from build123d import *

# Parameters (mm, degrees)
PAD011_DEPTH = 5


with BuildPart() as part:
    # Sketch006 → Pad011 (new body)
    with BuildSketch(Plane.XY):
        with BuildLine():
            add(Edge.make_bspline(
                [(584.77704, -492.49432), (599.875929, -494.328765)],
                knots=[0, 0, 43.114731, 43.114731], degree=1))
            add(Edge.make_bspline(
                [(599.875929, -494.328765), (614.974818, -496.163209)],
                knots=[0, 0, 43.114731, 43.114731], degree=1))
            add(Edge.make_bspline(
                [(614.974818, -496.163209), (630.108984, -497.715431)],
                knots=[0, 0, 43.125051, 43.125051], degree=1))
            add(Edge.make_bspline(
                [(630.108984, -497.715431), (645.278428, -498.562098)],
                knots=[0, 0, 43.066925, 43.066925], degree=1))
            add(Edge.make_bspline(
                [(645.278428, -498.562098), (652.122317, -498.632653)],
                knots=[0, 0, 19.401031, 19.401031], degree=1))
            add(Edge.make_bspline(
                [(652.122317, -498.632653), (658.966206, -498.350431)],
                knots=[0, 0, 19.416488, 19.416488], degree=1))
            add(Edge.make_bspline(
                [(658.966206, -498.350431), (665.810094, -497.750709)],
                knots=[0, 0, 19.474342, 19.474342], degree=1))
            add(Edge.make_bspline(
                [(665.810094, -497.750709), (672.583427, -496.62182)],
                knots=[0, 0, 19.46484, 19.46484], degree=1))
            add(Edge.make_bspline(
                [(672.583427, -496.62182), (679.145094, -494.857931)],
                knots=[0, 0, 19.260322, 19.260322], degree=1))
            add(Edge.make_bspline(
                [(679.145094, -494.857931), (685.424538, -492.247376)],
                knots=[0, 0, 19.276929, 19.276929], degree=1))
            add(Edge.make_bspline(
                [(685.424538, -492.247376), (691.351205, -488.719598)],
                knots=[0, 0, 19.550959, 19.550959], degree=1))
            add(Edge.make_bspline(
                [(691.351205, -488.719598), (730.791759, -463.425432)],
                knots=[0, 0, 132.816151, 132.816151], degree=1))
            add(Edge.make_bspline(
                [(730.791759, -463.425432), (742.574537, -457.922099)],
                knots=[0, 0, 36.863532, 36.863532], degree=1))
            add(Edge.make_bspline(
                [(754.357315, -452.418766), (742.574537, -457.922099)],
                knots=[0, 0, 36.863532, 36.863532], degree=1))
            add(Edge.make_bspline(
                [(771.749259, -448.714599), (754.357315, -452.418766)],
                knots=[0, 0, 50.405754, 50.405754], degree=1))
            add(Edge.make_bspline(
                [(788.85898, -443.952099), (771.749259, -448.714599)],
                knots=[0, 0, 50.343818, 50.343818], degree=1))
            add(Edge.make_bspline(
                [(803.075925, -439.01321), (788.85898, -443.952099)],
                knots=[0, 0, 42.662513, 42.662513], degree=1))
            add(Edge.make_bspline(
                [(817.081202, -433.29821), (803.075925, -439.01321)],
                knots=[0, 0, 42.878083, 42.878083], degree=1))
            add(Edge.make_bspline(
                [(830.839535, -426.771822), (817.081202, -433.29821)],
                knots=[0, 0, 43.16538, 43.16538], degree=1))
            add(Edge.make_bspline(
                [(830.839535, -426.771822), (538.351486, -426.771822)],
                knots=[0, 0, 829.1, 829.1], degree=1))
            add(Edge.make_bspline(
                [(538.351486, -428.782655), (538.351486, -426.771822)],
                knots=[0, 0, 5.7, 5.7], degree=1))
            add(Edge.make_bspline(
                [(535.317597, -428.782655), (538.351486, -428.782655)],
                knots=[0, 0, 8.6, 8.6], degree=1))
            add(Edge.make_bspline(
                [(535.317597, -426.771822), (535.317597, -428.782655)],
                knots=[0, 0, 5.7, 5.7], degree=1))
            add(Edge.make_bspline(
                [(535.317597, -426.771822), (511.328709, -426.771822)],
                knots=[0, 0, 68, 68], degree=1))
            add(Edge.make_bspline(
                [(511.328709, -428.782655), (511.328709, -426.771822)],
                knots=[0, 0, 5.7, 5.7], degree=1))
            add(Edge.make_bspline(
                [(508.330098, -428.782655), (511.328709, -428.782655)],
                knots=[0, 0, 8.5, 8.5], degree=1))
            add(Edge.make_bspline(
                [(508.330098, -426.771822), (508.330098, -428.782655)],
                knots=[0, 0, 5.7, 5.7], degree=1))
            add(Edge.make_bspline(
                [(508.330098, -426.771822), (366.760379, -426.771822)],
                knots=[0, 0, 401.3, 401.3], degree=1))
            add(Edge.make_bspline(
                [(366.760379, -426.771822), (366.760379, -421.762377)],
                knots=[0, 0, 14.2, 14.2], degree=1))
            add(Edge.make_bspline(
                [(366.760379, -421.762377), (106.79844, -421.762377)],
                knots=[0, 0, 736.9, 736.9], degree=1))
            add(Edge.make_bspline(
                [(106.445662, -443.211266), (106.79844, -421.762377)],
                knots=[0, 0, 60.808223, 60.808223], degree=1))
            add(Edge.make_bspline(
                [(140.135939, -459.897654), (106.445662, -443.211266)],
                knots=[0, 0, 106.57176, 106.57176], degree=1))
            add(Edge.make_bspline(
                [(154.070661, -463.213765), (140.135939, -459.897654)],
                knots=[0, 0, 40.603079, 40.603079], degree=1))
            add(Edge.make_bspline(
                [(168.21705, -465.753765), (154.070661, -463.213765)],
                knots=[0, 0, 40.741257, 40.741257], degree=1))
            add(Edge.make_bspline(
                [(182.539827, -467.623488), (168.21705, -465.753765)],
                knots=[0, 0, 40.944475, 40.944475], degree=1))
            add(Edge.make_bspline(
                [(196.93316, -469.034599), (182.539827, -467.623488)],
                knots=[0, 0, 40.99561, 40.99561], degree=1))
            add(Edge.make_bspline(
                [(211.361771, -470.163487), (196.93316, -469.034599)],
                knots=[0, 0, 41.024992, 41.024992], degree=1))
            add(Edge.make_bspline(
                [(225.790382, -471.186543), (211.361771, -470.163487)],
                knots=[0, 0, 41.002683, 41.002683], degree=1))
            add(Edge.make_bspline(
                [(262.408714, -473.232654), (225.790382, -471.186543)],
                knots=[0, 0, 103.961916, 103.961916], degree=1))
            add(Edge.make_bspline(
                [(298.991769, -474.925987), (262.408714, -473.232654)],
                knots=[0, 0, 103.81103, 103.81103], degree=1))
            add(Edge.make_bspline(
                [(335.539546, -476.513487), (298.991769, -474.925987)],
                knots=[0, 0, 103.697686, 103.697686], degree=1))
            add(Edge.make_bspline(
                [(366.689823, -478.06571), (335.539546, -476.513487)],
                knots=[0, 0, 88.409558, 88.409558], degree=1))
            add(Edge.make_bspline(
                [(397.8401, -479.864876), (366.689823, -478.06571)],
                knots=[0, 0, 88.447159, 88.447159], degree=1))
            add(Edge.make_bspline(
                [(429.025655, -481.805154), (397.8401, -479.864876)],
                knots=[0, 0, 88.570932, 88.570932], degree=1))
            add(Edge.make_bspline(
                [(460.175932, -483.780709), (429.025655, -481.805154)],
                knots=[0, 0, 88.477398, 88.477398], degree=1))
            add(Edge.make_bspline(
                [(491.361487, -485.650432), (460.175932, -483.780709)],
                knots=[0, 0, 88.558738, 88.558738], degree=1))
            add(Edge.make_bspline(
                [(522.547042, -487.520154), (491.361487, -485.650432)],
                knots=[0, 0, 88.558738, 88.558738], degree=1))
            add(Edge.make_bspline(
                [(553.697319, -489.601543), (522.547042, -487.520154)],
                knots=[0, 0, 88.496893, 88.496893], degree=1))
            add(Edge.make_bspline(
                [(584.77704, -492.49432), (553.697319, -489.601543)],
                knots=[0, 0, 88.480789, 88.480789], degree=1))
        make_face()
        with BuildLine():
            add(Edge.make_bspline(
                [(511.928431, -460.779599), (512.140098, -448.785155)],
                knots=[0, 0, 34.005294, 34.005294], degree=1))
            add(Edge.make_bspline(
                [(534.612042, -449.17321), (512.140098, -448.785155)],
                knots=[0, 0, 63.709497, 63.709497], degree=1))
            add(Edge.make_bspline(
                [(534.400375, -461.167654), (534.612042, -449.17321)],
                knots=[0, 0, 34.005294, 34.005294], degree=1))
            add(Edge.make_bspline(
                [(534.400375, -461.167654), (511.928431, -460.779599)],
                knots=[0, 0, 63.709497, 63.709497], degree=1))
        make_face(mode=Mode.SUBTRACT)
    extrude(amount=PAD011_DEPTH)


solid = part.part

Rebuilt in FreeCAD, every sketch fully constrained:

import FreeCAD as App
import Part
import Sketcher

doc = App.newDocument("Part")
body = doc.addObject("PartDesign::Body", "Body")

sketch1 = body.newObject("Sketcher::SketchObject", "Sketch")
sketch1.AttachmentSupport = (doc.getObject("XY_Plane"), [""])
sketch1.MapMode = "FlatFace"
sketch1.addGeometry([
    Part.BSplineCurve([App.Vector(584.77704, -492.49432, 0), App.Vector(599.875929, -494.328765, 0)], [2, 2], [0, 43.114731], False, 1, [1, 1], False),
    Part.BSplineCurve([App.Vector(599.875929, -494.328765, 0), App.Vector(614.974818, -496.163209, 0)], [2, 2], [0, 43.114731], False, 1, [1, 1], False),
    Part.BSplineCurve([App.Vector(614.974818, -496.163209, 0), App.Vector(630.108984, -497.715431, 0)], [2, 2], [0, 43.125051], False, 1, [1, 1], False),
    Part.BSplineCurve([App.Vector(630.108984, -497.715431, 0), App.Vector(645.278428, -498.562098, 0)], [2, 2], [0, 43.066925], False, 1, [1, 1], False),
    Part.BSplineCurve([App.Vector(645.278428, -498.562098, 0), App.Vector(652.122317, -498.632653, 0)], [2, 2], [0, 19.401031], False, 1, [1, 1], False),
    Part.BSplineCurve([App.Vector(652.122317, -498.632653, 0), App.Vector(658.966206, -498.350431, 0)], [2, 2], [0, 19.416488], False, 1, [1, 1], False),
    Part.BSplineCurve([App.Vector(658.966206, -498.350431, 0), App.Vector(665.810094, -497.750709, 0)], [2, 2], [0, 19.474342], False, 1, [1, 1], False),
    Part.BSplineCurve([App.Vector(665.810094, -497.750709, 0), App.Vector(672.583427, -496.62182, 0)], [2, 2], [0, 19.46484], False, 1, [1, 1], False),
    Part.BSplineCurve([App.Vector(672.583427, -496.62182, 0), App.Vector(679.145094, -494.857931, 0)], [2, 2], [0, 19.260322], False, 1, [1, 1], False),
    Part.BSplineCurve([App.Vector(679.145094, -494.857931, 0), App.Vector(685.424538, -492.247376, 0)], [2, 2], [0, 19.276929], False, 1, [1, 1], False),
    Part.BSplineCurve([App.Vector(685.424538, -492.247376, 0), App.Vector(691.351205, -488.719598, 0)], [2, 2], [0, 19.550959], False, 1, [1, 1], False),
    Part.BSplineCurve([App.Vector(691.351205, -488.719598, 0), App.Vector(730.791759, -463.425432, 0)], [2, 2], [0, 132.816151], False, 1, [1, 1], False),
    Part.LineSegment(App.Vector(730.791759, -463.425432, 0), App.Vector(754.357315, -452.418766, 0)),
    Part.BSplineCurve([App.Vector(771.749259, -448.714599, 0), App.Vector(754.357315, -452.418766, 0)], [2, 2], [0, 50.405754], False, 1, [1, 1], False),
    Part.BSplineCurve([App.Vector(788.85898, -443.952099, 0), App.Vector(771.749259, -448.714599, 0)], [2, 2], [0, 50.343818], False, 1, [1, 1], False),
    Part.BSplineCurve([App.Vector(803.075925, -439.01321, 0), App.Vector(788.85898, -443.952099, 0)], [2, 2], [0, 42.662513], False, 1, [1, 1], False),
    Part.BSplineCurve([App.Vector(817.081202, -433.29821, 0), App.Vector(803.075925, -439.01321, 0)], [2, 2], [0, 42.878083], False, 1, [1, 1], False),
    Part.BSplineCurve([App.Vector(830.839535, -426.771822, 0), App.Vector(817.081202, -433.29821, 0)], [2, 2], [0, 43.16538], False, 1, [1, 1], False),
    Part.BSplineCurve([App.Vector(830.839535, -426.771822, 0), App.Vector(538.351486, -426.771822, 0)], [2, 2], [0, 829.1], False, 1, [1, 1], False),
    Part.BSplineCurve([App.Vector(538.351486, -428.782655, 0), App.Vector(538.351486, -426.771822, 0)], [2, 2], [0, 5.7], False, 1, [1, 1], False),
    Part.BSplineCurve([App.Vector(535.317597, -428.782655, 0), App.Vector(538.351486, -428.782655, 0)], [2, 2], [0, 8.6], False, 1, [1, 1], False),
    Part.BSplineCurve([App.Vector(535.317597, -426.771822, 0), App.Vector(535.317597, -428.782655, 0)], [2, 2], [0, 5.7], False, 1, [1, 1], False),
    Part.BSplineCurve([App.Vector(535.317597, -426.771822, 0), App.Vector(511.328709, -426.771822, 0)], [2, 2], [0, 68], False, 1, [1, 1], False),
    Part.BSplineCurve([App.Vector(511.328709, -428.782655, 0), App.Vector(511.328709, -426.771822, 0)], [2, 2], [0, 5.7], False, 1, [1, 1], False),
    Part.BSplineCurve([App.Vector(508.330098, -428.782655, 0), App.Vector(511.328709, -428.782655, 0)], [2, 2], [0, 8.5], False, 1, [1, 1], False),
    Part.BSplineCurve([App.Vector(508.330098, -426.771822, 0), App.Vector(508.330098, -428.782655, 0)], [2, 2], [0, 5.7], False, 1, [1, 1], False),
    Part.BSplineCurve([App.Vector(508.330098, -426.771822, 0), App.Vector(366.760379, -426.771822, 0)], [2, 2], [0, 401.3], False, 1, [1, 1], False),
    Part.BSplineCurve([App.Vector(366.760379, -426.771822, 0), App.Vector(366.760379, -421.762377, 0)], [2, 2], [0, 14.2], False, 1, [1, 1], False),
    Part.BSplineCurve([App.Vector(366.760379, -421.762377, 0), App.Vector(106.79844, -421.762377, 0)], [2, 2], [0, 736.9], False, 1, [1, 1], False),
    Part.BSplineCurve([App.Vector(106.445662, -443.211266, 0), App.Vector(106.79844, -421.762377, 0)], [2, 2], [0, 60.808223], False, 1, [1, 1], False),
    Part.BSplineCurve([App.Vector(140.135939, -459.897654, 0), App.Vector(106.445662, -443.211266, 0)], [2, 2], [0, 106.57176], False, 1, [1, 1], False),
    Part.BSplineCurve([App.Vector(154.070661, -463.213765, 0), App.Vector(140.135939, -459.897654, 0)], [2, 2], [0, 40.603079], False, 1, [1, 1], False),
    Part.BSplineCurve([App.Vector(168.21705, -465.753765, 0), App.Vector(154.070661, -463.213765, 0)], [2, 2], [0, 40.741257], False, 1, [1, 1], False),
    Part.BSplineCurve([App.Vector(182.539827, -467.623488, 0), App.Vector(168.21705, -465.753765, 0)], [2, 2], [0, 40.944475], False, 1, [1, 1], False),
    Part.BSplineCurve([App.Vector(196.93316, -469.034599, 0), App.Vector(182.539827, -467.623488, 0)], [2, 2], [0, 40.99561], False, 1, [1, 1], False),
    Part.BSplineCurve([App.Vector(211.361771, -470.163487, 0), App.Vector(196.93316, -469.034599, 0)], [2, 2], [0, 41.024992], False, 1, [1, 1], False),
    Part.BSplineCurve([App.Vector(225.790382, -471.186543, 0), App.Vector(211.361771, -470.163487, 0)], [2, 2], [0, 41.002683], False, 1, [1, 1], False),
    Part.BSplineCurve([App.Vector(262.408714, -473.232654, 0), App.Vector(225.790382, -471.186543, 0)], [2, 2], [0, 103.961916], False, 1, [1, 1], False),
    Part.BSplineCurve([App.Vector(298.991769, -474.925987, 0), App.Vector(262.408714, -473.232654, 0)], [2, 2], [0, 103.81103], False, 1, [1, 1], False),
    Part.BSplineCurve([App.Vector(335.539546, -476.513487, 0), App.Vector(298.991769, -474.925987, 0)], [2, 2], [0, 103.697686], False, 1, [1, 1], False),
    Part.BSplineCurve([App.Vector(366.689823, -478.06571, 0), App.Vector(335.539546, -476.513487, 0)], [2, 2], [0, 88.409558], False, 1, [1, 1], False),
    Part.BSplineCurve([App.Vector(397.8401, -479.864876, 0), App.Vector(366.689823, -478.06571, 0)], [2, 2], [0, 88.447159], False, 1, [1, 1], False),
    Part.BSplineCurve([App.Vector(429.025655, -481.805154, 0), App.Vector(397.8401, -479.864876, 0)], [2, 2], [0, 88.570932], False, 1, [1, 1], False),
    Part.BSplineCurve([App.Vector(460.175932, -483.780709, 0), App.Vector(429.025655, -481.805154, 0)], [2, 2], [0, 88.477398], False, 1, [1, 1], False),
    Part.BSplineCurve([App.Vector(491.361487, -485.650432, 0), App.Vector(460.175932, -483.780709, 0)], [2, 2], [0, 88.558738], False, 1, [1, 1], False),
    Part.BSplineCurve([App.Vector(522.547042, -487.520154, 0), App.Vector(491.361487, -485.650432, 0)], [2, 2], [0, 88.558738], False, 1, [1, 1], False),
    Part.BSplineCurve([App.Vector(553.697319, -489.601543, 0), App.Vector(522.547042, -487.520154, 0)], [2, 2], [0, 88.496893], False, 1, [1, 1], False),
    Part.BSplineCurve([App.Vector(584.77704, -492.49432, 0), App.Vector(553.697319, -489.601543, 0)], [2, 2], [0, 88.480789], False, 1, [1, 1], False),
    Part.BSplineCurve([App.Vector(534.400375, -461.167654, 0), App.Vector(511.928431, -460.779599, 0)], [2, 2], [0, 63.709497], False, 1, [1, 1], False),
    Part.BSplineCurve([App.Vector(511.928431, -460.779599, 0), App.Vector(512.140098, -448.785155, 0)], [2, 2], [0, 34.005294], False, 1, [1, 1], False),
    Part.BSplineCurve([App.Vector(534.612042, -449.17321, 0), App.Vector(512.140098, -448.785155, 0)], [2, 2], [0, 63.709497], False, 1, [1, 1], False),
    Part.BSplineCurve([App.Vector(534.400375, -461.167654, 0), App.Vector(534.612042, -449.17321, 0)], [2, 2], [0, 34.005294], False, 1, [1, 1], False),
], False)
sketch1.addConstraint([
    Sketcher.Constraint("Block", 0),
    Sketcher.Constraint("Block", 1),
    Sketcher.Constraint("Block", 2),
    Sketcher.Constraint("Block", 3),
    Sketcher.Constraint("Block", 4),
    Sketcher.Constraint("Block", 5),
    Sketcher.Constraint("Block", 6),
    Sketcher.Constraint("Block", 7),
    Sketcher.Constraint("Block", 8),
    Sketcher.Constraint("Block", 9),
    Sketcher.Constraint("Block", 10),
    Sketcher.Constraint("Block", 11),
    Sketcher.Constraint("Block", 13),
    Sketcher.Constraint("Block", 14),
    Sketcher.Constraint("Block", 15),
    Sketcher.Constraint("Block", 16),
    Sketcher.Constraint("Block", 17),
    Sketcher.Constraint("Block", 18),
    Sketcher.Constraint("Block", 19),
    Sketcher.Constraint("Block", 20),
    Sketcher.Constraint("Block", 21),
    Sketcher.Constraint("Block", 22),
    Sketcher.Constraint("Block", 23),
    Sketcher.Constraint("Block", 24),
    Sketcher.Constraint("Block", 25),
    Sketcher.Constraint("Block", 26),
    Sketcher.Constraint("Block", 27),
    Sketcher.Constraint("Block", 28),
    Sketcher.Constraint("Block", 29),
    Sketcher.Constraint("Block", 30),
    Sketcher.Constraint("Block", 31),
    Sketcher.Constraint("Block", 32),
    Sketcher.Constraint("Block", 33),
    Sketcher.Constraint("Block", 34),
    Sketcher.Constraint("Block", 35),
    Sketcher.Constraint("Block", 36),
    Sketcher.Constraint("Block", 37),
    Sketcher.Constraint("Block", 38),
    Sketcher.Constraint("Block", 39),
    Sketcher.Constraint("Block", 40),
    Sketcher.Constraint("Block", 41),
    Sketcher.Constraint("Block", 42),
    Sketcher.Constraint("Block", 43),
    Sketcher.Constraint("Block", 44),
    Sketcher.Constraint("Block", 45),
    Sketcher.Constraint("Block", 46),
    Sketcher.Constraint("Block", 47),
    Sketcher.Constraint("Block", 48),
    Sketcher.Constraint("Block", 49),
    Sketcher.Constraint("Block", 50),
    Sketcher.Constraint("Block", 51),
    Sketcher.Constraint("Coincident", 11, 2, 12, 1),
    Sketcher.Constraint("Coincident", 12, 2, 13, 2),
])
pad1 = body.newObject("PartDesign::Pad", "Pad")
pad1.Profile = sketch1
pad1.Length = 5

doc.recompute()
